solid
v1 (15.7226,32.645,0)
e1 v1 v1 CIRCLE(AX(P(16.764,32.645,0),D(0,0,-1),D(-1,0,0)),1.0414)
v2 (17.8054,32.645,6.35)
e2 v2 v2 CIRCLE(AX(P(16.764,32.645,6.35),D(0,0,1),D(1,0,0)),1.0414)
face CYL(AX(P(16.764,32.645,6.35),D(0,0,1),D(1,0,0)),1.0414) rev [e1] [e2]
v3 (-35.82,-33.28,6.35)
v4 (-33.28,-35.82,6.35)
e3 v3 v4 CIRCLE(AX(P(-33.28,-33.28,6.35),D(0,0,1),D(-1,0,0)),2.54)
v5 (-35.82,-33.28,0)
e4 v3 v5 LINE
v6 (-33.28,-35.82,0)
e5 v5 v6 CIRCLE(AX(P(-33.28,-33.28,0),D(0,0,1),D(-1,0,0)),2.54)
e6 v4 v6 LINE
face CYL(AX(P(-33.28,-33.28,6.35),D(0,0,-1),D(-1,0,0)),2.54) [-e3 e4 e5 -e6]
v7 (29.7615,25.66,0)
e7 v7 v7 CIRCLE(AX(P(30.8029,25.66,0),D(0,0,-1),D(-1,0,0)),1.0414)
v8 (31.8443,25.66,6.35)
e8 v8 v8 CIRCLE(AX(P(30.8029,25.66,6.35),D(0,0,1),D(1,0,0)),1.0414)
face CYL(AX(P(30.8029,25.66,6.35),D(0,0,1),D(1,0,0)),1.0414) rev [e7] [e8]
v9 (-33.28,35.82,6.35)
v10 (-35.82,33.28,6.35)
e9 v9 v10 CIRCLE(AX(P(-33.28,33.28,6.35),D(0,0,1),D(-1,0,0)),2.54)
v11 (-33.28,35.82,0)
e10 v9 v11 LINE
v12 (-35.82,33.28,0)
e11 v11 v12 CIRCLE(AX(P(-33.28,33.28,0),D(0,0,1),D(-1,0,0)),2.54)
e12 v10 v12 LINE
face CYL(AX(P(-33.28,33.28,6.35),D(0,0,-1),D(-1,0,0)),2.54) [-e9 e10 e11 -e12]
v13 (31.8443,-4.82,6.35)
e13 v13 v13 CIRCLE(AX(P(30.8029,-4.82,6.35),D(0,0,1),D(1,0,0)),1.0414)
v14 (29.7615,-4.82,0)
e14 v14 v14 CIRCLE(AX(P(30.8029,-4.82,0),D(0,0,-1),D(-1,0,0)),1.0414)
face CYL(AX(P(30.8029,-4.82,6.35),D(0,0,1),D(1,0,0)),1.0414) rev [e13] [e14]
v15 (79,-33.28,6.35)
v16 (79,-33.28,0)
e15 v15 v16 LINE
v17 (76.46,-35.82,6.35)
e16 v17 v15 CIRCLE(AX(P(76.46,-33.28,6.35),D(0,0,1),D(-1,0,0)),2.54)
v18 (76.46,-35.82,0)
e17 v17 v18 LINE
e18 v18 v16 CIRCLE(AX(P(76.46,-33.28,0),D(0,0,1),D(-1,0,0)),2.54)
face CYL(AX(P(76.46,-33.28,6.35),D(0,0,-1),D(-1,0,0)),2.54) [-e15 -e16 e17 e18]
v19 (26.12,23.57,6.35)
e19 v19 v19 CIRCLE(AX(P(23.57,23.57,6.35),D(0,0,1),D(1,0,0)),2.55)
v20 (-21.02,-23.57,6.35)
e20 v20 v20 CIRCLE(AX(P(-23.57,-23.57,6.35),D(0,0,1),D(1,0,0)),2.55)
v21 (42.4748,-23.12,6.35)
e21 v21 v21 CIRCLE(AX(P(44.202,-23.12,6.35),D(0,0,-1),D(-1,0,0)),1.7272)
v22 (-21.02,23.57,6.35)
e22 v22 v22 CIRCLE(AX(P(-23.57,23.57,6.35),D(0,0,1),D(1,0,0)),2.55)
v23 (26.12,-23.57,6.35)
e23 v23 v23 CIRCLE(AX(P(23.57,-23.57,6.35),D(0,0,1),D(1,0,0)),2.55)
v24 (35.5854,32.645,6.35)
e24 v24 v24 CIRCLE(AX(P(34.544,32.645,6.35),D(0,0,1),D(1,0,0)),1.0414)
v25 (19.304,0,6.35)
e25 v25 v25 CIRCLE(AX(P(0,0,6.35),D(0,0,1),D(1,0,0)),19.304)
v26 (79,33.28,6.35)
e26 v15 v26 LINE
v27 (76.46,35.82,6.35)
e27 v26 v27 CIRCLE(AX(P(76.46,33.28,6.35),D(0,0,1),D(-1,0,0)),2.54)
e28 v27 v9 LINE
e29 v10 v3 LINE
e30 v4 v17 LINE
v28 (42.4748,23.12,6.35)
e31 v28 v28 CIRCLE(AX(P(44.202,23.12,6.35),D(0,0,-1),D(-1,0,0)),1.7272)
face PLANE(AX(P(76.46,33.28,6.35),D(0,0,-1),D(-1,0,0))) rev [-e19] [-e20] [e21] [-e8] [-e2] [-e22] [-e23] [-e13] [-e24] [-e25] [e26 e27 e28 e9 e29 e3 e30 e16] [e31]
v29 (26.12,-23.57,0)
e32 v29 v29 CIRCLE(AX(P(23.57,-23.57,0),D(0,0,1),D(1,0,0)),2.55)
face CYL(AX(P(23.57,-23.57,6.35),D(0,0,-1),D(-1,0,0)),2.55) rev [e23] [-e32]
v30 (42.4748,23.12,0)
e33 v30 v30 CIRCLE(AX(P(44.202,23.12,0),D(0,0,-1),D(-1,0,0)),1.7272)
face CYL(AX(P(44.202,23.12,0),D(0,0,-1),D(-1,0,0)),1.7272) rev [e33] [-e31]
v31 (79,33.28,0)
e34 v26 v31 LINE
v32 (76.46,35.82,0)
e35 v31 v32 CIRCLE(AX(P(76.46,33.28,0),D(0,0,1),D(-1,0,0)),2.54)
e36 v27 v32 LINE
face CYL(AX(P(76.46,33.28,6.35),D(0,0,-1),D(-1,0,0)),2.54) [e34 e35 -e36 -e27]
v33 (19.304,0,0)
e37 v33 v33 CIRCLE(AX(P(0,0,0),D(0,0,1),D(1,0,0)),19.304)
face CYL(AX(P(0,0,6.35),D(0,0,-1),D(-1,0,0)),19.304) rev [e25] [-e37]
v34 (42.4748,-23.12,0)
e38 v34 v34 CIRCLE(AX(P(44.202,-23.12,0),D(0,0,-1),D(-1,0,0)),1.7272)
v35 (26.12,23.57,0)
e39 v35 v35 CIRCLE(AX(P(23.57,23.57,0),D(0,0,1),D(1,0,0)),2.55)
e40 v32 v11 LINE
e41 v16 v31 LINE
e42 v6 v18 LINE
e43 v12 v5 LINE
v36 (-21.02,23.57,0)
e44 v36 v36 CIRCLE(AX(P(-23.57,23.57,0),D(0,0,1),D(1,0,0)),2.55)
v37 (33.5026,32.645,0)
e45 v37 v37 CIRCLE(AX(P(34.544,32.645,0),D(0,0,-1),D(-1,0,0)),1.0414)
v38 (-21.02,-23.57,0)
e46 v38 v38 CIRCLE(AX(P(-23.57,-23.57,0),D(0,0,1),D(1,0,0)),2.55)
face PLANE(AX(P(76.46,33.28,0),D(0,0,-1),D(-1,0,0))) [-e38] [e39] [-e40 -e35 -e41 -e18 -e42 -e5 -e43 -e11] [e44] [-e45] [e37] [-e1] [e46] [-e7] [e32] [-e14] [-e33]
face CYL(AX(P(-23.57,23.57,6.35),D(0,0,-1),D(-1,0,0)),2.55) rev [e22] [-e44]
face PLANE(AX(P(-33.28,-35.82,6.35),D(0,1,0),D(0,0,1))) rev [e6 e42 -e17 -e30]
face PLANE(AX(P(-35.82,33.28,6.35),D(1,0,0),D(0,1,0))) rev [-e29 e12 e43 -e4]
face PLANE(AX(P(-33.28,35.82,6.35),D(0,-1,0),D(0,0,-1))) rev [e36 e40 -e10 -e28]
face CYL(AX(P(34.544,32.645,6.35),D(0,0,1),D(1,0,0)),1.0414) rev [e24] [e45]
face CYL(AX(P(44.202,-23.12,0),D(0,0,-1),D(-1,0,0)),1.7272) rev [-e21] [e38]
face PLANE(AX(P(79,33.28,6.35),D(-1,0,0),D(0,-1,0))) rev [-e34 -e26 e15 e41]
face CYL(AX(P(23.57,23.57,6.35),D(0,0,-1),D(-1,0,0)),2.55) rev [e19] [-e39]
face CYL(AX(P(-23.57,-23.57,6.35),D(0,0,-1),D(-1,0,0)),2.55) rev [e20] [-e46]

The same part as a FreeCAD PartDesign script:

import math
import FreeCAD as App
import Part
import Sketcher

V = App.Vector
Q = App.Units.Quantity

doc = App.newDocument("Part")
body = doc.addObject("PartDesign::Body", "Body")

# Sketch on XY plane
sketch1 = doc.addObject("Sketcher::SketchObject", "Sketch")
body.addObject(sketch1)
sketch1.AttachmentSupport = (doc.XY_Plane, [""])
sketch1.MapMode = "FlatFace"
sketch1.addGeometry([
    Part.LineSegment(V(76.46, 35.82, 0), V(-33.28, 35.82, 0)),  # 0
    Part.ArcOfCircle(Part.Circle(V(-33.28, 33.28, 0), V(0, 0, 1), 2.54), math.radians(90), math.radians(180)),  # 1
    Part.LineSegment(V(-35.82, 33.28, 0), V(-35.82, -33.28, 0)),  # 2
    Part.ArcOfCircle(Part.Circle(V(-33.28, -33.28, 0), V(0, 0, 1), 2.54), math.radians(-180), math.radians(-90)),  # 3
    Part.LineSegment(V(-33.28, -35.82, 0), V(76.46, -35.82, 0)),  # 4
    Part.ArcOfCircle(Part.Circle(V(76.46, -33.28, 0), V(0, 0, 1), 2.54), math.radians(-90), math.radians(0)),  # 5
    Part.LineSegment(V(79, -33.28, 0), V(79, 33.28, 0)),  # 6
    Part.ArcOfCircle(Part.Circle(V(76.46, 33.28, 0), V(0, 0, 1), 2.54), math.radians(0), math.radians(90)),  # 7
    Part.Circle(V(23.57, -23.57, 0), V(0, 0, 1), 2.55),  # 8
    Part.Circle(V(-23.57, -23.57, 0), V(0, 0, 1), 2.55),  # 9
    Part.Circle(V(23.57, 23.57, 0), V(0, 0, 1), 2.55),  # 10
    Part.Circle(V(0, 0, 0), V(0, 0, 1), 19.304),  # 11
    Part.Circle(V(-23.57, 23.57, 0), V(0, 0, 1), 2.55),  # 12
], False)
sketch1.addConstraint([
    Sketcher.Constraint("Tangent", 0, 2, 1, 1),
    Sketcher.Constraint("Tangent", 1, 2, 2, 1),
    Sketcher.Constraint("Tangent", 2, 2, 3, 1),
    Sketcher.Constraint("Tangent", 3, 2, 4, 1),
    Sketcher.Constraint("Tangent", 4, 2, 5, 1),
    Sketcher.Constraint("Tangent", 5, 2, 6, 1),
    Sketcher.Constraint("Tangent", 6, 2, 7, 1),
    Sketcher.Constraint("Tangent", 7, 2, 0, 1),
    Sketcher.Constraint("Horizontal", 0),
    Sketcher.Constraint("Vertical", 2),
    Sketcher.Constraint("Horizontal", 4),
    Sketcher.Constraint("Vertical", 6),
    Sketcher.Constraint("Coincident", 11, 3, -1, 1),
    Sketcher.Constraint("Equal", 1, 3),
    Sketcher.Constraint("Equal", 3, 5),
    Sketcher.Constraint("Equal", 5, 7),
    Sketcher.Constraint("Equal", 8, 9),
    Sketcher.Constraint("Equal", 9, 10),
    Sketcher.Constraint("Equal", 10, 12),
    Sketcher.Constraint("Symmetric", 9, 3, 10, 3, -1, 1),
    Sketcher.Constraint("Symmetric", 8, 3, 12, 3, -1, 1),
    Sketcher.Constraint("Symmetric", 8, 3, 9, 3, -2),
    Sketcher.Constraint("Radius", 1, Q("0.1 in")),
    Sketcher.Constraint("Diameter", 11, Q("1.52 in")),
    Sketcher.Constraint("Diameter", 8, Q("5.1 mm")),
    Sketcher.Constraint("DistanceX", 0, 2, 0, 1, Q("109.74 mm")),
    Sketcher.Constraint("DistanceY", 2, 2, 2, 1, Q("66.56 mm")),
    Sketcher.Constraint("DistanceX", 1, 3, -1, 1, Q("33.28 mm")),
    Sketcher.Constraint("DistanceY", -1, 1, 1, 3, Q("33.28 mm")),
    Sketcher.Constraint("DistanceX", -1, 1, 8, 3, Q("23.57 mm")),
    Sketcher.Constraint("DistanceY", 8, 3, -1, 1, Q("23.57 mm")),
])
pad1 = doc.addObject("PartDesign::Pad", "Pad")
body.addObject(pad1)
pad1.Profile = sketch1
pad1.Length = Q("0.25 in")

# Sketch on XY plane
sketch2 = doc.addObject("Sketcher::SketchObject", "Sketch001")
body.addObject(sketch2)
sketch2.AttachmentSupport = (doc.XY_Plane, [""])
sketch2.MapMode = "FlatFace"
sketch2.AttachmentOffset = App.Placement(V(0, 0, 0.25 * 25.4), App.Rotation())
sketch2.addGeometry([
    Part.Circle(V(30.8029, -4.82, 0), V(0, 0, 1), 1.0414),
    Part.Circle(V(34.544, 32.645, 0), V(0, 0, 1), 1.0414),
    Part.Circle(V(16.764, 32.645, 0), V(0, 0, 1), 1.0414),
    Part.Circle(V(30.8029, 25.66, 0), V(0, 0, 1), 1.0414),
], False)
sketch2.addConstraint([
    Sketcher.Constraint("Equal", 0, 1),
    Sketcher.Constraint("Equal", 1, 2),
    Sketcher.Constraint("Equal", 2, 3),
    Sketcher.Constraint("Horizontal", 1, 3, 2, 3),
    Sketcher.Constraint("Vertical", 0, 3, 3, 3),
    Sketcher.Constraint("Diameter", 0, Q("0.082 in")),
    Sketcher.Constraint("DistanceX", 2, 3, 1, 3, Q("0.7 in")),
    Sketcher.Constraint("DistanceY", 0, 3, 3, 3, Q("1.2 in")),
    Sketcher.Constraint("DistanceX", -1, 1, 1, 3, Q("1.36 in")),
    Sketcher.Constraint("DistanceY", 0, 3, 1, 3, Q("1.475 in")),
    Sketcher.Constraint("DistanceX", -1, 1, 0, 3, Q("30.8029 mm")),
    Sketcher.Constraint("DistanceY", 0, 3, -1, 1, Q("4.82 mm")),
])
doc.recompute()
hole = doc.addObject("PartDesign::Hole", "Hole")
body.addObject(hole)
hole.Profile = sketch2
hole.ThreadType = "None"
hole.Diameter = Q("0.082 in")
hole.DepthType = "Dimension"
hole.Depth = Q("0.3 in")
hole.DrillPoint = "Angled"
hole.DrillPointAngle = 118

# Sketch on XY plane
sketch3 = doc.addObject("Sketcher::SketchObject", "Sketch002")
body.addObject(sketch3)
sketch3.AttachmentSupport = (doc.XY_Plane, [""])
sketch3.MapMode = "FlatFace"
sketch3.addGeometry([
    Part.Circle(V(44.202, 23.12, 0), V(0, 0, 1), 1.7272),
    Part.Circle(V(44.202, -23.12, 0), V(0, 0, 1), 1.7272),
], False)
sketch3.addConstraint([
    Sketcher.Constraint("Equal", 0, 1),
    Sketcher.Constraint("Symmetric", 0, 3, 1, 3, -1),
    Sketcher.Constraint("Diameter", 0, Q("0.136 in")),
    Sketcher.Constraint("DistanceX", -1, 1, 0, 3, Q("44.202 mm")),
    Sketcher.Constraint("DistanceY", -1, 1, 0, 3, Q("23.12 mm")),
])
doc.recompute()
hole2 = doc.addObject("PartDesign::Hole", "Hole001")
body.addObject(hole2)
hole2.Profile = sketch3
hole2.ThreadType = "None"
hole2.Diameter = Q("0.136 in")
hole2.DepthType = "ThroughAll"
hole2.Reversed = True

doc.recompute()
